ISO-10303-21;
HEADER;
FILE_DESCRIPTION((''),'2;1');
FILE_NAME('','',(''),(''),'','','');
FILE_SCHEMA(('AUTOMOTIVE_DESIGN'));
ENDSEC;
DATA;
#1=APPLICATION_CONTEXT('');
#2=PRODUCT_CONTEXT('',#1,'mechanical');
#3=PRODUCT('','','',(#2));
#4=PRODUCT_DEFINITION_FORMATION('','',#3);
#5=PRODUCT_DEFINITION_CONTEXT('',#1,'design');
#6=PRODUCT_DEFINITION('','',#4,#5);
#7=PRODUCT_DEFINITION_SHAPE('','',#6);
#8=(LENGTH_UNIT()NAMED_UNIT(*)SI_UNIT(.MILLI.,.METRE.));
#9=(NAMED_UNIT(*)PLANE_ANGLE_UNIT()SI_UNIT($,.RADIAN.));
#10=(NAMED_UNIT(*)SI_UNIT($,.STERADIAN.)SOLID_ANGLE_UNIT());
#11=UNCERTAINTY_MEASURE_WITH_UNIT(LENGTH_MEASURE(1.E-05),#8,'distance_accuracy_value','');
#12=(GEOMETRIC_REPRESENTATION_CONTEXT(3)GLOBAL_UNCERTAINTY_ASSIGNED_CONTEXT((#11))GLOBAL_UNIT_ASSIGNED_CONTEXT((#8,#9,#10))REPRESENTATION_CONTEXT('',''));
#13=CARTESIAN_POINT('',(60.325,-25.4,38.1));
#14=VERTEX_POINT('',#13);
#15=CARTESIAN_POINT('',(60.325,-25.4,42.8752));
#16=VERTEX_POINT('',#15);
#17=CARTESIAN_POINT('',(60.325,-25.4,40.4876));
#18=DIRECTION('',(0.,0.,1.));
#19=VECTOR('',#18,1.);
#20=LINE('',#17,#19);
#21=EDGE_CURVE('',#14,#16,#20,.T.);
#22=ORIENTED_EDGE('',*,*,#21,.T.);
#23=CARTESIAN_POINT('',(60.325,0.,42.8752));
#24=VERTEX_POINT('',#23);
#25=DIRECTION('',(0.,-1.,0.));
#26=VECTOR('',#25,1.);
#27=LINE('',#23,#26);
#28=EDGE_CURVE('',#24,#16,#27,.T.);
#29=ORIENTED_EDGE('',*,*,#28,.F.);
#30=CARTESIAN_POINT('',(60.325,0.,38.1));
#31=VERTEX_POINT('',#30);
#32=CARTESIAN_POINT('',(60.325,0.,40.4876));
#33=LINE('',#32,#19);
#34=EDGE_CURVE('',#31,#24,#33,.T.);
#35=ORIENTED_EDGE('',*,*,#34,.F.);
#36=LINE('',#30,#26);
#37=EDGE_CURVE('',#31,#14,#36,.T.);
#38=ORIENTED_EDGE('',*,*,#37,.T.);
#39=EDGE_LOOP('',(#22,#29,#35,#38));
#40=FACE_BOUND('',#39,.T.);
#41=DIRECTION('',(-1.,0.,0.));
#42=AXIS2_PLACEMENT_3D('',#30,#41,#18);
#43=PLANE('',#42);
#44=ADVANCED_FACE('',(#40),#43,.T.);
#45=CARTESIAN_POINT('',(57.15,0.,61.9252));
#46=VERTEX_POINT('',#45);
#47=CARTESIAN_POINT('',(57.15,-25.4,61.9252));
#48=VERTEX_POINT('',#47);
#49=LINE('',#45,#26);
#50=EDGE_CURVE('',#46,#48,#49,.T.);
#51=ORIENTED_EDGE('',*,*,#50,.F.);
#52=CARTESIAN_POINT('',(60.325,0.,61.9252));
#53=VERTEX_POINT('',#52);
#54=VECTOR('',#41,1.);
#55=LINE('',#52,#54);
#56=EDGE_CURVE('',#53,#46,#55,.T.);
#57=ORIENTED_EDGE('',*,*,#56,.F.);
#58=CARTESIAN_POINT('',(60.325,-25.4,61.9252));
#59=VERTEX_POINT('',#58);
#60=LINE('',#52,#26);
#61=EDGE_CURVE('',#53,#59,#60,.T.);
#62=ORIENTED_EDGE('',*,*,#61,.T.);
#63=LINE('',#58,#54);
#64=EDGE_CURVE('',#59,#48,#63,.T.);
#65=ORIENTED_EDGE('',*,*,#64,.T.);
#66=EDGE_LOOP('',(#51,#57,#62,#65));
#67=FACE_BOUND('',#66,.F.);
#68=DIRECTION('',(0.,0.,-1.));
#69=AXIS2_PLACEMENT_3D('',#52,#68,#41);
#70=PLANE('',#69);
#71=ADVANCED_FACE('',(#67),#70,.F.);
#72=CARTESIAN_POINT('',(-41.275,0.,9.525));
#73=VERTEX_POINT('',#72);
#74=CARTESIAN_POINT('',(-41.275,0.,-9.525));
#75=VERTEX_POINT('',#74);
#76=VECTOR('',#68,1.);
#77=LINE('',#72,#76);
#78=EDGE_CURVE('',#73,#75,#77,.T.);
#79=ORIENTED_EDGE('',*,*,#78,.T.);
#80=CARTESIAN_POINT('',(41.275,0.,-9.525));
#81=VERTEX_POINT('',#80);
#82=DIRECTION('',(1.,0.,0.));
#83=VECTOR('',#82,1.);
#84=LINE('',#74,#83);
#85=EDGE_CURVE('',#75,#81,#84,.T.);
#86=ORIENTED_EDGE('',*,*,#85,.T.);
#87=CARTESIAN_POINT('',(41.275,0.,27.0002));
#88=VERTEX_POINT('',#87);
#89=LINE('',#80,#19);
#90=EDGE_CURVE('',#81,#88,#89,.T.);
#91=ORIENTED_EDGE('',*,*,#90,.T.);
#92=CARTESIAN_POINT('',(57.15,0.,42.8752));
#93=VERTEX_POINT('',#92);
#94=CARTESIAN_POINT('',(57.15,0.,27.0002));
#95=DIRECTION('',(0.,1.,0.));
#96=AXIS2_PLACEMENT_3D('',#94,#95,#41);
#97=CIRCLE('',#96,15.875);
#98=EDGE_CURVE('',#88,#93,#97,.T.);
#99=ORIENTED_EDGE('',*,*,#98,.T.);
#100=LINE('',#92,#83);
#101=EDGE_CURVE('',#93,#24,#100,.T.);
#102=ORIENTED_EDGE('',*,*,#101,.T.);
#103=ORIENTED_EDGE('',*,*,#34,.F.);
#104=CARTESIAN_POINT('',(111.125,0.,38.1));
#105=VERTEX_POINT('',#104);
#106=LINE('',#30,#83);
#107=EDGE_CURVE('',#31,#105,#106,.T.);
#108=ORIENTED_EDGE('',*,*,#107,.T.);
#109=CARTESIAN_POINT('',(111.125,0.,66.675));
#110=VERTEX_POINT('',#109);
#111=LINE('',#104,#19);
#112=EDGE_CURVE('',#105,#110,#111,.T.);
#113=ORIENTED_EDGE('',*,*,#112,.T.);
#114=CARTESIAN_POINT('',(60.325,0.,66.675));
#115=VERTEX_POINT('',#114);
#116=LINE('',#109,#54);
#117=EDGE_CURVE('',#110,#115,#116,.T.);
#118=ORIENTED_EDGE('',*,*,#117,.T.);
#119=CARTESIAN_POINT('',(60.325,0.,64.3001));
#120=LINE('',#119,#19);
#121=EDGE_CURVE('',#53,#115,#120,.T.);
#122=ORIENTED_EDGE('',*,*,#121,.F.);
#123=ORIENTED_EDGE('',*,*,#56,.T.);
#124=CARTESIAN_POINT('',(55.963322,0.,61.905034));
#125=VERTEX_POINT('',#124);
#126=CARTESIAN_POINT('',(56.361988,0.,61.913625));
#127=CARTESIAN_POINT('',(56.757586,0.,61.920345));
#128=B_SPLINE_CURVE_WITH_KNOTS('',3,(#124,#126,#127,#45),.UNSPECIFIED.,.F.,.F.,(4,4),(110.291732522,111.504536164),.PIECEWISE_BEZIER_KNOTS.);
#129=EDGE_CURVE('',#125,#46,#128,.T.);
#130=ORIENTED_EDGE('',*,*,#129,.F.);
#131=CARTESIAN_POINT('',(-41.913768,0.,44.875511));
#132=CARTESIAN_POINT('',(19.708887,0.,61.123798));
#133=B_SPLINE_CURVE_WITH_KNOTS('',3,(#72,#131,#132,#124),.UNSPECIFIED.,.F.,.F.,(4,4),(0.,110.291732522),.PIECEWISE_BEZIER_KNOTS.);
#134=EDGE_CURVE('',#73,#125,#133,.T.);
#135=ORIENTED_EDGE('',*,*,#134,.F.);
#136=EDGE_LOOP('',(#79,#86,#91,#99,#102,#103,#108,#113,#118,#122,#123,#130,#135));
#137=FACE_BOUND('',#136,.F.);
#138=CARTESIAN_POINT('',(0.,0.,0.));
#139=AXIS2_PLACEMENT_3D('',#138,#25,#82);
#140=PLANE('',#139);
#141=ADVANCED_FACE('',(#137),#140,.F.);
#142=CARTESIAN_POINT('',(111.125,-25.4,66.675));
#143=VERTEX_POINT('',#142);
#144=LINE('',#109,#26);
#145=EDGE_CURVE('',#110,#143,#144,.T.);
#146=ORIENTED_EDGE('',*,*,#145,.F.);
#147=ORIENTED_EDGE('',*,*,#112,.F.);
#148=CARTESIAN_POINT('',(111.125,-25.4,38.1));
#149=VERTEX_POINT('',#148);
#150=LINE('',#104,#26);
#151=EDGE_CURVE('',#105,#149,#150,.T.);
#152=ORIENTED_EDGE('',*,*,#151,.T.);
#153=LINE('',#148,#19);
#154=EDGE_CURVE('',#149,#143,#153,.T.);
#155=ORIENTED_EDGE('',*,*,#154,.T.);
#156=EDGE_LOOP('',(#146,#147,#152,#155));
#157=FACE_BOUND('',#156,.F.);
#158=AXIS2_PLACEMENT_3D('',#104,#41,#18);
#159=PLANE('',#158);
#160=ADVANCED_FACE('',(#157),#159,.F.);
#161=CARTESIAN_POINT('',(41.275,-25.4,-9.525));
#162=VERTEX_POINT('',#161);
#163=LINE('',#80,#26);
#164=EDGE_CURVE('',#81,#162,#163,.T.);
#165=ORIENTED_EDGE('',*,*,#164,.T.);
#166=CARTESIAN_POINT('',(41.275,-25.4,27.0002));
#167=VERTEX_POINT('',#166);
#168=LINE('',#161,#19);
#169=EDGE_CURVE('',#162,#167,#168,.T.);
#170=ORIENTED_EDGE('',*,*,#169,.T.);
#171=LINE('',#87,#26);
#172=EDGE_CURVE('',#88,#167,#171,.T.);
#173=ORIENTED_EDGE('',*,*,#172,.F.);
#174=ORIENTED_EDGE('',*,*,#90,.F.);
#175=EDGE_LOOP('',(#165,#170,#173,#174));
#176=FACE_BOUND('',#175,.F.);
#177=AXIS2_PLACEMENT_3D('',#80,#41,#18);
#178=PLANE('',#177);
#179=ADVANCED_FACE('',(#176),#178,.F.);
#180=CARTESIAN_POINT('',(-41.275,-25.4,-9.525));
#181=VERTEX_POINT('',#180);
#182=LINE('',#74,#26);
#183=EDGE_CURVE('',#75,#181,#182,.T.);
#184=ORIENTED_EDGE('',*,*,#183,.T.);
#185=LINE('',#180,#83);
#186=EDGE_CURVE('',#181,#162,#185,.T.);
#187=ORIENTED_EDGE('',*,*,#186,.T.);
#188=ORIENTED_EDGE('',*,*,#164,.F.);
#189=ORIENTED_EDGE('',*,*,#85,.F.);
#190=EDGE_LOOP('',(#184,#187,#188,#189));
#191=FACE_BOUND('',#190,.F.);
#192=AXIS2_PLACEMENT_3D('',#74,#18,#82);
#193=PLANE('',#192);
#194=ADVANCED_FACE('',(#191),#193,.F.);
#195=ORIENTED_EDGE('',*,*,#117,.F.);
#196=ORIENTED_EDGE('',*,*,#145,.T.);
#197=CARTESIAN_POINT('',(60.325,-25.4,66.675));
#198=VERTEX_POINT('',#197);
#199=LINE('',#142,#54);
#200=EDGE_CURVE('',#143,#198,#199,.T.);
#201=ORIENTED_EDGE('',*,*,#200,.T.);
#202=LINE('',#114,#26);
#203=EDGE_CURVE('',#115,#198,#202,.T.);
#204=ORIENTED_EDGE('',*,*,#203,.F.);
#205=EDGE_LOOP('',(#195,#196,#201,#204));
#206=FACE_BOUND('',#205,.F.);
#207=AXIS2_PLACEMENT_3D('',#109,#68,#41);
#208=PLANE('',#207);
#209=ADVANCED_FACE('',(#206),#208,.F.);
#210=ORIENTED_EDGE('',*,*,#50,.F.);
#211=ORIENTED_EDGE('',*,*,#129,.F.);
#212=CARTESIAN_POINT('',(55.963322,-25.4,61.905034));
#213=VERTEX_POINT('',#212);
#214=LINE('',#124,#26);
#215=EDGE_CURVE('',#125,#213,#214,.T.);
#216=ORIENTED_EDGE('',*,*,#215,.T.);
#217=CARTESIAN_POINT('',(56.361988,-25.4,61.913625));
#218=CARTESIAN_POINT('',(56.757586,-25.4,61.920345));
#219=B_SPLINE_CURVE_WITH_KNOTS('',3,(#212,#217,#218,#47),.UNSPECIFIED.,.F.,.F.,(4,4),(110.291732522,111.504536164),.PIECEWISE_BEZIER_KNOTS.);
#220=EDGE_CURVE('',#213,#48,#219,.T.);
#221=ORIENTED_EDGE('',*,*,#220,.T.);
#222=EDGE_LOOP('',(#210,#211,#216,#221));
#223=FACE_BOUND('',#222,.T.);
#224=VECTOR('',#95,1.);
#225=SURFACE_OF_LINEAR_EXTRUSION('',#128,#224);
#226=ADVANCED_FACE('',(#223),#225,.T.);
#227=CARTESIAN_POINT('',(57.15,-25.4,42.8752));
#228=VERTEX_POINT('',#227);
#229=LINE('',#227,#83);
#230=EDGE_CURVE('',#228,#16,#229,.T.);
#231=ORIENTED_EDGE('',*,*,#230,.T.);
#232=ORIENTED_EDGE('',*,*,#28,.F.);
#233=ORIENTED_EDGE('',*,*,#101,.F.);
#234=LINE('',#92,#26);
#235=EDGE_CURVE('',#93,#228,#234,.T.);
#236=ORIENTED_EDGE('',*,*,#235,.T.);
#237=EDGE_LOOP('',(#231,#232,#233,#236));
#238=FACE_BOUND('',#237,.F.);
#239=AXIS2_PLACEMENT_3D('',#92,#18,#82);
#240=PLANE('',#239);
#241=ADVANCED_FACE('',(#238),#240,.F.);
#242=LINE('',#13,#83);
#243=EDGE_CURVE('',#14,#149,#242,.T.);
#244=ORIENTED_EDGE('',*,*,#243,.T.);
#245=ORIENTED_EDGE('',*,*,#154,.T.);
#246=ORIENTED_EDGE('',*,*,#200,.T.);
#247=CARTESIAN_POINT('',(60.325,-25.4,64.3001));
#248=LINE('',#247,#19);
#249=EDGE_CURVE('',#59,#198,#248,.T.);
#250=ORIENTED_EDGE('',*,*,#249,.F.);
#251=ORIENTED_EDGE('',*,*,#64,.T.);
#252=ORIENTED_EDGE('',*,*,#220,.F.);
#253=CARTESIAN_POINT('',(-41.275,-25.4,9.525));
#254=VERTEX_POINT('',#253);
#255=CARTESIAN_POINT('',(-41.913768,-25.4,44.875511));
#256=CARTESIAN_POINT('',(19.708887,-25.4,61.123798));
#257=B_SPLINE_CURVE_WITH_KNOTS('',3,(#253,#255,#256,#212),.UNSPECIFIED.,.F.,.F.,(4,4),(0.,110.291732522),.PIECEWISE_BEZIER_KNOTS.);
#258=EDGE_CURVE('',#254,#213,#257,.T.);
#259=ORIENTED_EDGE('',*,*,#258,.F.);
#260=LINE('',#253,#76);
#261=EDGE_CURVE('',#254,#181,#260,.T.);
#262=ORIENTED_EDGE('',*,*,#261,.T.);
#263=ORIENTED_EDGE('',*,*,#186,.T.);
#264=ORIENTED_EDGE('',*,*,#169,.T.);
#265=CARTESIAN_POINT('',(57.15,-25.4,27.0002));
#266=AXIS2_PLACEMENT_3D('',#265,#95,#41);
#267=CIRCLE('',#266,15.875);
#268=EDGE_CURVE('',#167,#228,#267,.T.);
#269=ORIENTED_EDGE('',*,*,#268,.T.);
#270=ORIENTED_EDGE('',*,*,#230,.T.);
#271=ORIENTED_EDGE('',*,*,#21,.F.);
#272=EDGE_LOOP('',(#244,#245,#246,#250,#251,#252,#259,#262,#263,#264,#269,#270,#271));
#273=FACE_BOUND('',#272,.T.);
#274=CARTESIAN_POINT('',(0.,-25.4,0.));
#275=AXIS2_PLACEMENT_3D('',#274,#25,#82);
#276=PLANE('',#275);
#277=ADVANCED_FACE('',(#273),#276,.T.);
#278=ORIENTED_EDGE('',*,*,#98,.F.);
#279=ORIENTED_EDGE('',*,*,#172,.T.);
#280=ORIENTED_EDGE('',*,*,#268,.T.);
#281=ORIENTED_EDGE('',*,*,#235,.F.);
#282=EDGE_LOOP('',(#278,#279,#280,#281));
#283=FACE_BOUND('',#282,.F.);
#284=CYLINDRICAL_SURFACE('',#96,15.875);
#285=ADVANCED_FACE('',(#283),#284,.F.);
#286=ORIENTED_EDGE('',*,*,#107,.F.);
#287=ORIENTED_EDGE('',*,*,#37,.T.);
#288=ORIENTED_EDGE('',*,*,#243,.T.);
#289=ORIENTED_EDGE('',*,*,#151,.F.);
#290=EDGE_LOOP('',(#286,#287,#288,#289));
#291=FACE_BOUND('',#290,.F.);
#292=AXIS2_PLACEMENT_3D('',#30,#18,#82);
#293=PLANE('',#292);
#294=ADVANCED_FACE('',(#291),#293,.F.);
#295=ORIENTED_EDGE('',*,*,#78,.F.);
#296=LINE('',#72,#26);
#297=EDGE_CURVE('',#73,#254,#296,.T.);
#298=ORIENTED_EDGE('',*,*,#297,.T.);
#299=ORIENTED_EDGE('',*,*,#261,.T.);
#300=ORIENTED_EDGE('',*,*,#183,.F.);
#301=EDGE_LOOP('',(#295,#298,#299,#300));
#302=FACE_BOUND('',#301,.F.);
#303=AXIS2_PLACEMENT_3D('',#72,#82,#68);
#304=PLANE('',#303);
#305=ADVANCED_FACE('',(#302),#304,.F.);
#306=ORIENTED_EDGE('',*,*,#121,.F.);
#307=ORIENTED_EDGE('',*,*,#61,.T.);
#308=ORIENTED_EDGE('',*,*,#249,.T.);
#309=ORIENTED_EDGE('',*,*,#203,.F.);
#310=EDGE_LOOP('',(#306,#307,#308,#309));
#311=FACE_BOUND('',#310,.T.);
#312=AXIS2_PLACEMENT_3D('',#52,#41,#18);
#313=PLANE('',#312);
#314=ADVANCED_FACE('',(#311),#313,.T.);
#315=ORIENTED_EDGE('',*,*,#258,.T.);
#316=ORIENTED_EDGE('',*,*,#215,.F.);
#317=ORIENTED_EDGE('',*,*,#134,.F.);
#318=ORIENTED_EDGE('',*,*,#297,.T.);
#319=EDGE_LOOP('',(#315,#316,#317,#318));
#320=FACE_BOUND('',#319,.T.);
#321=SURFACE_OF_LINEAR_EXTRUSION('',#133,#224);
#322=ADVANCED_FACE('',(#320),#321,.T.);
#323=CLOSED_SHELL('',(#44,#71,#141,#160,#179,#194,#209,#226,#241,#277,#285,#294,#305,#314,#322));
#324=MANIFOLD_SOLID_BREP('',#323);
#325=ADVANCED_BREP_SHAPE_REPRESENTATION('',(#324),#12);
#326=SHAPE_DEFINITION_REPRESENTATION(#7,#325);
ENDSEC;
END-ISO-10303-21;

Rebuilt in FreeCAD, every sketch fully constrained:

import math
import FreeCAD as App
import Part
import Sketcher
Q = App.Units.Quantity

doc = App.newDocument("Part")
body = doc.addObject("PartDesign::Body", "Body")

sketch1 = body.newObject("Sketcher::SketchObject", "Sketch")
sketch1.AttachmentSupport = (doc.getObject("XZ_Plane"), [""])
sketch1.MapMode = "FlatFace"
sketch1.addGeometry(Part.LineSegment(App.Vector(-41.275, 9.525, 0), App.Vector(-41.275, -9.525, 0)), False)
sketch1.addGeometry(Part.LineSegment(App.Vector(-41.275, -9.525, 0), App.Vector(41.275, -9.525, 0)), False)
sketch1.addGeometry(Part.LineSegment(App.Vector(41.275, -9.525, 0), App.Vector(41.275, 27.0002, 0)), False)
sketch1.addGeometry(Part.ArcOfCircle(Part.Circle(App.Vector(57.15, 27.0002, 0), App.Vector(0, 0, 1), 15.875), math.radians(90), math.radians(180)), False)
sketch1.addGeometry(Part.LineSegment(App.Vector(57.15, 42.8752, 0), App.Vector(60.325, 42.8752, 0)), False)
sketch1.addGeometry(Part.LineSegment(App.Vector(60.325, 42.8752, 0), App.Vector(60.325, 38.1, 0)), False)
sketch1.addGeometry(Part.LineSegment(App.Vector(60.325, 38.1, 0), App.Vector(111.125, 38.1, 0)), False)
sketch1.addGeometry(Part.LineSegment(App.Vector(111.125, 38.1, 0), App.Vector(111.125, 66.675, 0)), False)
sketch1.addGeometry(Part.LineSegment(App.Vector(111.125, 66.675, 0), App.Vector(60.325, 66.675, 0)), False)
sketch1.addGeometry(Part.LineSegment(App.Vector(60.325, 66.675, 0), App.Vector(60.325, 61.9252, 0)), False)
sketch1.addGeometry(Part.LineSegment(App.Vector(60.325, 61.9252, 0), App.Vector(57.15, 61.9252, 0)), False)
sketch1.addGeometry(Part.BSplineCurve([App.Vector(55.963322, 61.905034, 0), App.Vector(56.361988, 61.913625, 0), App.Vector(56.757586, 61.920345, 0), App.Vector(57.15, 61.9252, 0)], [4, 4], [110.291732522, 111.504536164], False, 3, [1, 1, 1, 1], False), False)
sketch1.addGeometry(Part.BSplineCurve([App.Vector(-41.275, 9.525, 0), App.Vector(-41.913768, 44.875511, 0), App.Vector(19.708887, 61.123798, 0), App.Vector(55.963322, 61.905034, 0)], [4, 4], [0, 110.291732522], False, 3, [1, 1, 1, 1], False), False)
sketch1.addConstraint(Sketcher.Constraint("Block", 11))
sketch1.addConstraint(Sketcher.Constraint("Block", 12))
sketch1.addConstraint(Sketcher.Constraint("Coincident", 0, 2, 1, 1))
sketch1.addConstraint(Sketcher.Constraint("Coincident", 1, 2, 2, 1))
sketch1.addConstraint(Sketcher.Constraint("Tangent", 2, 2, 3, 2))
sketch1.addConstraint(Sketcher.Constraint("Tangent", 3, 1, 4, 1))
sketch1.addConstraint(Sketcher.Constraint("Coincident", 4, 2, 5, 1))
sketch1.addConstraint(Sketcher.Constraint("Coincident", 5, 2, 6, 1))
sketch1.addConstraint(Sketcher.Constraint("Coincident", 6, 2, 7, 1))
sketch1.addConstraint(Sketcher.Constraint("Coincident", 7, 2, 8, 1))
sketch1.addConstraint(Sketcher.Constraint("Coincident", 8, 2, 9, 1))
sketch1.addConstraint(Sketcher.Constraint("Coincident", 9, 2, 10, 1))
sketch1.addConstraint(Sketcher.Constraint("Coincident", 10, 2, 11, 2))
sketch1.addConstraint(Sketcher.Constraint("Coincident", 12, 1, 0, 1))
sketch1.addConstraint(Sketcher.Constraint("Vertical", 0))
sketch1.addConstraint(Sketcher.Constraint("Horizontal", 1))
sketch1.addConstraint(Sketcher.Constraint("Vertical", 2))
sketch1.addConstraint(Sketcher.Constraint("Horizontal", 4))
sketch1.addConstraint(Sketcher.Constraint("Vertical", 5))
sketch1.addConstraint(Sketcher.Constraint("Horizontal", 6))
sketch1.addConstraint(Sketcher.Constraint("Vertical", 7))
sketch1.addConstraint(Sketcher.Constraint("Horizontal", 8))
sketch1.addConstraint(Sketcher.Constraint("Vertical", 9))
sketch1.addConstraint(Sketcher.Constraint("Horizontal", 10))
sketch1.addConstraint(Sketcher.Constraint("Vertical", 5, 2, 8, 2))
sketch1.addConstraint(Sketcher.Constraint("Vertical", 3, 1, 10, 2))
sketch1.addConstraint(Sketcher.Constraint("DistanceX", 6, 1, 6, 2, Q("2 in")))
sketch1.addConstraint(Sketcher.Constraint("Radius", 3, Q("0.625 in")))
sketch1.addConstraint(Sketcher.Constraint("DistanceX", 0, 2, 4, 2, Q("4 in")))
sketch1.addConstraint(Sketcher.Constraint("DistanceY", 0, 2, 0, 1, Q("0.75 in")))
sketch1.addConstraint(Sketcher.Constraint("DistanceY", -1, 1, 5, 2, Q("1.5 in")))
sketch1.addConstraint(Sketcher.Constraint("DistanceY", 2, 1, 2, 2, Q("1.438 in")))
sketch1.addConstraint(Sketcher.Constraint("DistanceY", 7, 1, 7, 2, Q("1.125 in")))
pad1 = body.newObject("PartDesign::Pad", "Pad")
pad1.Profile = sketch1
pad1.Length = Q("1 in")

doc.recompute()
